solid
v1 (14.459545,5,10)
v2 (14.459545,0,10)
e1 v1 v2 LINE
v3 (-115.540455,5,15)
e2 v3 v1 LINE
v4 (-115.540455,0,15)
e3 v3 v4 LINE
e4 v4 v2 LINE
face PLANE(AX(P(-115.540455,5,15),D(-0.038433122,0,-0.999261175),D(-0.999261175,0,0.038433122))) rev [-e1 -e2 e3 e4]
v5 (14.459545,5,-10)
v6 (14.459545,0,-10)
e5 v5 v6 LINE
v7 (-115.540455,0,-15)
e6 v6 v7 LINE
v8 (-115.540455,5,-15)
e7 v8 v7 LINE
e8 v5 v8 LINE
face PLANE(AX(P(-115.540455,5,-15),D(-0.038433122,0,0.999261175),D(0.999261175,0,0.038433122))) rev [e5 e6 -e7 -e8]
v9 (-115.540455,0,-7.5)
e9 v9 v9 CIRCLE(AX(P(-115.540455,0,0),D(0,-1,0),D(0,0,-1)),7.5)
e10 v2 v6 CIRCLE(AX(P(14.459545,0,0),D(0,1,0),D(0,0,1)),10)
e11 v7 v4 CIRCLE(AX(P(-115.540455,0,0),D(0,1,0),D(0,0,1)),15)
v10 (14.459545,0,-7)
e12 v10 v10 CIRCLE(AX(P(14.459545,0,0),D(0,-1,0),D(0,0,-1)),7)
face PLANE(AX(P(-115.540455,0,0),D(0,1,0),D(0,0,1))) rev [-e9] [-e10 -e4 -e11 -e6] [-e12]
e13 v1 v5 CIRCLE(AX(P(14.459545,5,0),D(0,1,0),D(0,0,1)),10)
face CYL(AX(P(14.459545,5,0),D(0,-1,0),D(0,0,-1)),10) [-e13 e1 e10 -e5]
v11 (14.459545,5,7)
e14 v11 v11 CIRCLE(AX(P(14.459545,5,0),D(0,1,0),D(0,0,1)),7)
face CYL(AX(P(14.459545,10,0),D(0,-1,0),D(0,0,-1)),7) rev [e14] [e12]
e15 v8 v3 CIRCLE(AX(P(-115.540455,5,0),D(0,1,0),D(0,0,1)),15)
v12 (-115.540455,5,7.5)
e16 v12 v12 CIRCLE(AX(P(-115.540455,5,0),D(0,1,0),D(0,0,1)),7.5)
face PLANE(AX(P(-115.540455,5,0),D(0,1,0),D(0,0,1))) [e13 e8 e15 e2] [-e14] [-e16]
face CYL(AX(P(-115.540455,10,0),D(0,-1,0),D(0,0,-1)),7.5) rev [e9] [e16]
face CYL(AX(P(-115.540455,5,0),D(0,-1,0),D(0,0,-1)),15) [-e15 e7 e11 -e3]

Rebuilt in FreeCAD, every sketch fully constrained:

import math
import FreeCAD as App
import Part
import Sketcher

V = App.Vector

doc = App.newDocument("Part")
body = doc.addObject("PartDesign::Body", "Body")

# Sketch on XZ plane
sketch1 = doc.addObject("Sketcher::SketchObject", "Sketch")
body.addObject(sketch1)
sketch1.AttachmentSupport = (doc.XZ_Plane, [""])
sketch1.MapMode = "FlatFace"
sketch1.addGeometry(Part.LineSegment(V(14, -10, 0), V(-116, -15, 0)), False)
sketch1.addGeometry(Part.ArcOfCircle(Part.Circle(V(-116, 0, 0), V(0, 0, 1), 15), math.radians(90), math.radians(270)), False)
sketch1.addGeometry(Part.LineSegment(V(-116, 15, 0), V(14, 10, 0)), False)
sketch1.addGeometry(Part.ArcOfCircle(Part.Circle(V(14, 0, 0), V(0, 0, 1), 10), math.radians(-90), math.radians(90)), False)
sketch1.addConstraint(Sketcher.Constraint("Coincident", 0, 2, 1, 2))
sketch1.addConstraint(Sketcher.Constraint("Coincident", 1, 1, 2, 1))
sketch1.addConstraint(Sketcher.Constraint("Coincident", 2, 2, 3, 2))
sketch1.addConstraint(Sketcher.Constraint("Coincident", 3, 1, 0, 1))
sketch1.addConstraint(Sketcher.Constraint("Symmetric", 0, 2, 1, 1, -1))
sketch1.addConstraint(Sketcher.Constraint("Symmetric", 2, 2, 3, 1, -1))
sketch1.addConstraint(Sketcher.Constraint("Vertical", 1, 3, 0, 2))
sketch1.addConstraint(Sketcher.Constraint("Vertical", 3, 3, 2, 2))
sketch1.addConstraint(Sketcher.Constraint("Radius", 1, 15.0))
sketch1.addConstraint(Sketcher.Constraint("Radius", 3, 10.0))
sketch1.addConstraint(Sketcher.Constraint("DistanceX", 1, 3, 3, 3, 130.0))
sketch1.addConstraint(Sketcher.Constraint("DistanceX", 1, 3, -1, 1, 115.540455))
pad1 = doc.addObject("PartDesign::Pad", "Pad")
body.addObject(pad1)
pad1.Profile = sketch1
pad1.Length = 5
pad1.Reversed = True

# Sketch on XZ plane
sketch2 = doc.addObject("Sketcher::SketchObject", "Sketch001")
body.addObject(sketch2)
sketch2.AttachmentSupport = (doc.XZ_Plane, [""])
sketch2.MapMode = "FlatFace"
sketch2.addGeometry(Part.Circle(V(14, 0, 0), V(0, 0, 1), 7), False)
sketch2.addGeometry(Part.Circle(V(-116, 0, 0), V(0, 0, 1), 8), False)
sketch2.addConstraint(Sketcher.Constraint("PointOnObject", 0, 3, -1))
sketch2.addConstraint(Sketcher.Constraint("PointOnObject", 1, 3, -1))
sketch2.addConstraint(Sketcher.Constraint("Diameter", 0, 14.0))
sketch2.addConstraint(Sketcher.Constraint("Diameter", 1, 15.0))
sketch2.addConstraint(Sketcher.Constraint("DistanceX", 1, 3, 0, 3, 130.0))
sketch2.addConstraint(Sketcher.Constraint("DistanceX", -1, 1, 0, 3, 14.459545))
pocket1 = doc.addObject("PartDesign::Pocket", "Pocket")
body.addObject(pocket1)
pocket1.Profile = sketch2
pocket1.Length = 10

doc.recompute()
